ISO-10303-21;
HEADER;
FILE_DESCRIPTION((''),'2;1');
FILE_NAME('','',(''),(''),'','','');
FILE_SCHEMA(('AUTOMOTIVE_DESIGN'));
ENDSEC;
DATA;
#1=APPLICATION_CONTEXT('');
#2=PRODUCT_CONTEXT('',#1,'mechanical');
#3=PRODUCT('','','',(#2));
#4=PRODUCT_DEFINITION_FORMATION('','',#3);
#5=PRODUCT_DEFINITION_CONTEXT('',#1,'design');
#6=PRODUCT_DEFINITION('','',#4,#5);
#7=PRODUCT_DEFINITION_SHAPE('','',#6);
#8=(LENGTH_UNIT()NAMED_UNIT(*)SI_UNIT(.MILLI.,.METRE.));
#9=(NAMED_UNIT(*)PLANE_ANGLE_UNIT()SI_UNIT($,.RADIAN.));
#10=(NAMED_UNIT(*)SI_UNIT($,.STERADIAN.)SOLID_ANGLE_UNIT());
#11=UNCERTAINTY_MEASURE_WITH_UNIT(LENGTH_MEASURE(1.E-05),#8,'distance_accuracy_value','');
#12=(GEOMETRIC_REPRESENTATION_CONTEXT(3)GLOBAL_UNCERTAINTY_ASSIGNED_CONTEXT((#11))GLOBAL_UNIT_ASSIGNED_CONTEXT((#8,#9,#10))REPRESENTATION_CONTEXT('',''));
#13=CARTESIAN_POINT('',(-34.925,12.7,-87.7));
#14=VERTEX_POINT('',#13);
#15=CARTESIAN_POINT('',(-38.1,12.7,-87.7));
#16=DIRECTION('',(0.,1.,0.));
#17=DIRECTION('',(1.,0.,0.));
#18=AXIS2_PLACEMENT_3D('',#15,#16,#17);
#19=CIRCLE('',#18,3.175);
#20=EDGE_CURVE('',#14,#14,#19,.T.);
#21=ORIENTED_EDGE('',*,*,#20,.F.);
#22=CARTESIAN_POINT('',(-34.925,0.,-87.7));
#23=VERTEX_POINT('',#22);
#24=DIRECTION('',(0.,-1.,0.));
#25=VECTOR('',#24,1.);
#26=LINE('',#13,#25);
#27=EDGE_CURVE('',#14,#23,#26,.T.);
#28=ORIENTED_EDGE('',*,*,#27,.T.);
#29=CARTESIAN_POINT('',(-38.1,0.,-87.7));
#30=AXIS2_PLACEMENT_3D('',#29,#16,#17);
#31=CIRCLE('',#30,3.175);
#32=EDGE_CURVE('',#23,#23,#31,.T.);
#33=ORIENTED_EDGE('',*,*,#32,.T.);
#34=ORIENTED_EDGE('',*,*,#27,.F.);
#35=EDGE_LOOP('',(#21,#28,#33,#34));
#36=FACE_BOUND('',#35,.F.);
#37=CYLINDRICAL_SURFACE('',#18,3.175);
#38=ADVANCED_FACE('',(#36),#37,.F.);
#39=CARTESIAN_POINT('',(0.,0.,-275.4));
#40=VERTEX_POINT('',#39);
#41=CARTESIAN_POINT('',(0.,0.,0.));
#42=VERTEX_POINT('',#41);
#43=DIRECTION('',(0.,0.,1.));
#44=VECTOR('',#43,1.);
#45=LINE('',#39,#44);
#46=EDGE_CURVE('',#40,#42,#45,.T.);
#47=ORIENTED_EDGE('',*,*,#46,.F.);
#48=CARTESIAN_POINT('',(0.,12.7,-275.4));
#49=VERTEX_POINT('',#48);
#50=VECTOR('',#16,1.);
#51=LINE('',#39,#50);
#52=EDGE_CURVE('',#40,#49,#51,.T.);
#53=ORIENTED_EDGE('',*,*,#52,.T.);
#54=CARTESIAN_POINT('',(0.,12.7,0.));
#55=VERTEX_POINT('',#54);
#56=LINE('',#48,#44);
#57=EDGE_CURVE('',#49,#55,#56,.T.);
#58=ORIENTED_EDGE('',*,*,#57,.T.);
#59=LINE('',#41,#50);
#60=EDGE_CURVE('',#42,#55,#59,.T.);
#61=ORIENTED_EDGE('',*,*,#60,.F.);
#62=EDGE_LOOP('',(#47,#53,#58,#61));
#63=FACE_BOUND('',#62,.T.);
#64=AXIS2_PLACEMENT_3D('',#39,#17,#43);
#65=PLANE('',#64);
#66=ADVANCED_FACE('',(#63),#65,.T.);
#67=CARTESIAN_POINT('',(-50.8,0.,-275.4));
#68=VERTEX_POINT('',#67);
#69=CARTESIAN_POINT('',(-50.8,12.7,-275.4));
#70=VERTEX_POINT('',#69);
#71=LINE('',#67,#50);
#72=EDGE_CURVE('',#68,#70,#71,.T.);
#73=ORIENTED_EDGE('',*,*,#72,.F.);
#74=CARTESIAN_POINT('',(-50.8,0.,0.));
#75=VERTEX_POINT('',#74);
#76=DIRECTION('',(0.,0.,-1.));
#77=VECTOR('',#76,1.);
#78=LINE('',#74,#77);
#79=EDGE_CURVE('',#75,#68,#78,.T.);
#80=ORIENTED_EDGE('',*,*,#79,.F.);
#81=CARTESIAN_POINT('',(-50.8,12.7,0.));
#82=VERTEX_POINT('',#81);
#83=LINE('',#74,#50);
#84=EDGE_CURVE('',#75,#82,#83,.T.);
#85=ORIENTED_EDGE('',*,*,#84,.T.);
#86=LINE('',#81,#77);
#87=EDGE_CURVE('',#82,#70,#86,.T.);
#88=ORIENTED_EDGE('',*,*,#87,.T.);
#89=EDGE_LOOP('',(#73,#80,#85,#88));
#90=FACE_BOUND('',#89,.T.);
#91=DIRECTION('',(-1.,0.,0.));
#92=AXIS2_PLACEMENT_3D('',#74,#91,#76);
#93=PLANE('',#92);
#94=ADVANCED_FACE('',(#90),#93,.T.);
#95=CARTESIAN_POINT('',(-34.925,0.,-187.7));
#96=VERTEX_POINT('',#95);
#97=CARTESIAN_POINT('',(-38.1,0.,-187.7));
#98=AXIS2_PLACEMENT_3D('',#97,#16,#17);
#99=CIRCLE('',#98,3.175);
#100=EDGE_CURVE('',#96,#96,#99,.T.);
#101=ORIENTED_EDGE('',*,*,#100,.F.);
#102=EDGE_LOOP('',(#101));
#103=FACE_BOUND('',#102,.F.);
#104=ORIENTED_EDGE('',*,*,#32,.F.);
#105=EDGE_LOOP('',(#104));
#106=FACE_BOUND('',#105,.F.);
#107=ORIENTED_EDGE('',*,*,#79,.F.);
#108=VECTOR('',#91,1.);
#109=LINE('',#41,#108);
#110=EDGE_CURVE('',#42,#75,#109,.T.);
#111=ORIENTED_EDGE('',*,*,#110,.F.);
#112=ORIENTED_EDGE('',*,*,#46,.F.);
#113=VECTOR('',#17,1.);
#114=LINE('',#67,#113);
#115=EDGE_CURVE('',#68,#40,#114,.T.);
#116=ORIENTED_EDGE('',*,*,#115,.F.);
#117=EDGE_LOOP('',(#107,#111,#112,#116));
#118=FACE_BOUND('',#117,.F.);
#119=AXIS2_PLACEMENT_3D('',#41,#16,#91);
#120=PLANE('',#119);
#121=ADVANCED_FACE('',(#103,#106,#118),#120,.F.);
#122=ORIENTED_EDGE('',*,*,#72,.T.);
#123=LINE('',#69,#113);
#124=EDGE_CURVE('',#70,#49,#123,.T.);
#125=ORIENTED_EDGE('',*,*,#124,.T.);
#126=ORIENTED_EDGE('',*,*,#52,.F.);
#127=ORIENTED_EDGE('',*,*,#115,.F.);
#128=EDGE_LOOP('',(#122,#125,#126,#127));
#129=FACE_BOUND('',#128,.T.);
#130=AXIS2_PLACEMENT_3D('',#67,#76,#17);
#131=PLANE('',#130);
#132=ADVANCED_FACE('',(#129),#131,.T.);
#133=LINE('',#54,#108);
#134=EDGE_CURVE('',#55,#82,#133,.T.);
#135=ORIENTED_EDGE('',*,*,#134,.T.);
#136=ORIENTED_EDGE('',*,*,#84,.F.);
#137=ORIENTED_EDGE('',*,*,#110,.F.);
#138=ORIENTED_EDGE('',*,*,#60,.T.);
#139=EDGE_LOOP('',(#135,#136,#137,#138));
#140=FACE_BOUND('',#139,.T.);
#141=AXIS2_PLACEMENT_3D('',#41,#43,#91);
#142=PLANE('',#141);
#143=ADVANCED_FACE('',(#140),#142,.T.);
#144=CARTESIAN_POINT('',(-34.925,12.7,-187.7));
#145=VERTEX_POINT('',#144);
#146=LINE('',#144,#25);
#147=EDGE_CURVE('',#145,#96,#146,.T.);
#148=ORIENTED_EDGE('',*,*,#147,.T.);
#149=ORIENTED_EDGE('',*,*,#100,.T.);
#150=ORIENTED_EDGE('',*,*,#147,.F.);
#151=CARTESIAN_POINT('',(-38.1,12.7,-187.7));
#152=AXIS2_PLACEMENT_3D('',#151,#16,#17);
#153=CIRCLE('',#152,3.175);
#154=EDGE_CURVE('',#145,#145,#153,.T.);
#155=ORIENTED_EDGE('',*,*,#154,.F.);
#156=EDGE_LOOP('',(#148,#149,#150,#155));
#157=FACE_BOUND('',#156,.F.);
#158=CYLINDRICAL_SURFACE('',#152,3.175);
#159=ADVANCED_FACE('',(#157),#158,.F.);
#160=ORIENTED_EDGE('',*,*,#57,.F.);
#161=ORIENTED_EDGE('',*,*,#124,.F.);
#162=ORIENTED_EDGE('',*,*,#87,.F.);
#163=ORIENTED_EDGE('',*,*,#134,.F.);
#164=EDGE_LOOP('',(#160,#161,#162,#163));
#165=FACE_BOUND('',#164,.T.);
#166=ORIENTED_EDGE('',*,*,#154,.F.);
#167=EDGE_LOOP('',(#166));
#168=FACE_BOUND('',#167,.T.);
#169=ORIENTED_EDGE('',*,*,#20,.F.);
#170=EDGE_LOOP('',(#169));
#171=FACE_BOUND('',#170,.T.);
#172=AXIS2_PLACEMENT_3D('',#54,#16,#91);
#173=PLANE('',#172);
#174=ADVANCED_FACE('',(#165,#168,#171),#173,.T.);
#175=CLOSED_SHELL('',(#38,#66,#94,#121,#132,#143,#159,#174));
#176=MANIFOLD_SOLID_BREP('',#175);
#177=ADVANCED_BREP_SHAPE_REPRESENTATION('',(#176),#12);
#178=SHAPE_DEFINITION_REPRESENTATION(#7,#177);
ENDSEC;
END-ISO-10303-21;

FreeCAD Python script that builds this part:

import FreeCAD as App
import Part
import Sketcher
Q = App.Units.Quantity

doc = App.newDocument("Part")
body = doc.addObject("PartDesign::Body", "Body")

# Sketch on XZ plane
sketch1 = doc.addObject("Sketcher::SketchObject", "Sketch")
body.addObject(sketch1)
sketch1.AttachmentSupport = (doc.XZ_Plane, [""])
sketch1.MapMode = "FlatFace"
sketch1.addGeometry([
    Part.LineSegment(App.Vector(-50.8, 0, 0), App.Vector(0, 0, 0)),
    Part.LineSegment(App.Vector(0, 0, 0), App.Vector(0, -275.4, 0)),
    Part.LineSegment(App.Vector(0, -275.4, 0), App.Vector(-50.8, -275.4, 0)),
    Part.LineSegment(App.Vector(-50.8, -275.4, 0), App.Vector(-50.8, 0, 0)),
], False)
sketch1.addConstraint([
    Sketcher.Constraint("Coincident", 0, 2, 1, 1),
    Sketcher.Constraint("Coincident", 1, 2, 2, 1),
    Sketcher.Constraint("Coincident", 2, 2, 3, 1),
    Sketcher.Constraint("Coincident", 3, 2, 0, 1),
    Sketcher.Constraint("Horizontal", 0),
    Sketcher.Constraint("Vertical", 1),
    Sketcher.Constraint("Horizontal", 2),
    Sketcher.Constraint("Vertical", 3),
    Sketcher.Constraint("Coincident", 0, 2, -1, 1),
    Sketcher.Constraint("DistanceX", 0, 1, 0, 2, Q("2 in")),
    Sketcher.Constraint("DistanceY", 1, 2, 1, 1, 275.4),
])
pad1 = doc.addObject("PartDesign::Pad", "Pad")
body.addObject(pad1)
pad1.Profile = sketch1
pad1.Length = Q("0.5 in")
pad1.Reversed = True

# Sketch on XZ plane
sketch2 = doc.addObject("Sketcher::SketchObject", "Sketch001")
body.addObject(sketch2)
sketch2.AttachmentSupport = (doc.XZ_Plane, [""])
sketch2.MapMode = "FlatFace"
sketch2.AttachmentOffset = App.Placement(App.Vector(0, 0, -0.5 * 25.4), App.Rotation())
sketch2.addGeometry([
    Part.Circle(App.Vector(-38.1, -87.7, 0), App.Vector(0, 0, 1), 3.175),
    Part.Circle(App.Vector(-38.1, -187.7, 0), App.Vector(0, 0, 1), 3.175),
], False)
sketch2.addConstraint([
    Sketcher.Constraint("Equal", 0, 1),
    Sketcher.Constraint("Vertical", 0, 3, 1, 3),
    Sketcher.Constraint("Diameter", 0, Q("0.25 in")),
    Sketcher.Constraint("DistanceX", 0, 3, -1, 1, Q("1.5 in")),
    Sketcher.Constraint("DistanceY", 1, 3, 0, 3, Q("3.937 in")),
    Sketcher.Constraint("DistanceY", 0, 3, -1, 1, 87.7),
])
pocket1 = doc.addObject("PartDesign::Pocket", "Pocket")
body.addObject(pocket1)
pocket1.Profile = sketch2
pocket1.Length = Q("0.5 in")
pocket1.Reversed = True

doc.recompute()
